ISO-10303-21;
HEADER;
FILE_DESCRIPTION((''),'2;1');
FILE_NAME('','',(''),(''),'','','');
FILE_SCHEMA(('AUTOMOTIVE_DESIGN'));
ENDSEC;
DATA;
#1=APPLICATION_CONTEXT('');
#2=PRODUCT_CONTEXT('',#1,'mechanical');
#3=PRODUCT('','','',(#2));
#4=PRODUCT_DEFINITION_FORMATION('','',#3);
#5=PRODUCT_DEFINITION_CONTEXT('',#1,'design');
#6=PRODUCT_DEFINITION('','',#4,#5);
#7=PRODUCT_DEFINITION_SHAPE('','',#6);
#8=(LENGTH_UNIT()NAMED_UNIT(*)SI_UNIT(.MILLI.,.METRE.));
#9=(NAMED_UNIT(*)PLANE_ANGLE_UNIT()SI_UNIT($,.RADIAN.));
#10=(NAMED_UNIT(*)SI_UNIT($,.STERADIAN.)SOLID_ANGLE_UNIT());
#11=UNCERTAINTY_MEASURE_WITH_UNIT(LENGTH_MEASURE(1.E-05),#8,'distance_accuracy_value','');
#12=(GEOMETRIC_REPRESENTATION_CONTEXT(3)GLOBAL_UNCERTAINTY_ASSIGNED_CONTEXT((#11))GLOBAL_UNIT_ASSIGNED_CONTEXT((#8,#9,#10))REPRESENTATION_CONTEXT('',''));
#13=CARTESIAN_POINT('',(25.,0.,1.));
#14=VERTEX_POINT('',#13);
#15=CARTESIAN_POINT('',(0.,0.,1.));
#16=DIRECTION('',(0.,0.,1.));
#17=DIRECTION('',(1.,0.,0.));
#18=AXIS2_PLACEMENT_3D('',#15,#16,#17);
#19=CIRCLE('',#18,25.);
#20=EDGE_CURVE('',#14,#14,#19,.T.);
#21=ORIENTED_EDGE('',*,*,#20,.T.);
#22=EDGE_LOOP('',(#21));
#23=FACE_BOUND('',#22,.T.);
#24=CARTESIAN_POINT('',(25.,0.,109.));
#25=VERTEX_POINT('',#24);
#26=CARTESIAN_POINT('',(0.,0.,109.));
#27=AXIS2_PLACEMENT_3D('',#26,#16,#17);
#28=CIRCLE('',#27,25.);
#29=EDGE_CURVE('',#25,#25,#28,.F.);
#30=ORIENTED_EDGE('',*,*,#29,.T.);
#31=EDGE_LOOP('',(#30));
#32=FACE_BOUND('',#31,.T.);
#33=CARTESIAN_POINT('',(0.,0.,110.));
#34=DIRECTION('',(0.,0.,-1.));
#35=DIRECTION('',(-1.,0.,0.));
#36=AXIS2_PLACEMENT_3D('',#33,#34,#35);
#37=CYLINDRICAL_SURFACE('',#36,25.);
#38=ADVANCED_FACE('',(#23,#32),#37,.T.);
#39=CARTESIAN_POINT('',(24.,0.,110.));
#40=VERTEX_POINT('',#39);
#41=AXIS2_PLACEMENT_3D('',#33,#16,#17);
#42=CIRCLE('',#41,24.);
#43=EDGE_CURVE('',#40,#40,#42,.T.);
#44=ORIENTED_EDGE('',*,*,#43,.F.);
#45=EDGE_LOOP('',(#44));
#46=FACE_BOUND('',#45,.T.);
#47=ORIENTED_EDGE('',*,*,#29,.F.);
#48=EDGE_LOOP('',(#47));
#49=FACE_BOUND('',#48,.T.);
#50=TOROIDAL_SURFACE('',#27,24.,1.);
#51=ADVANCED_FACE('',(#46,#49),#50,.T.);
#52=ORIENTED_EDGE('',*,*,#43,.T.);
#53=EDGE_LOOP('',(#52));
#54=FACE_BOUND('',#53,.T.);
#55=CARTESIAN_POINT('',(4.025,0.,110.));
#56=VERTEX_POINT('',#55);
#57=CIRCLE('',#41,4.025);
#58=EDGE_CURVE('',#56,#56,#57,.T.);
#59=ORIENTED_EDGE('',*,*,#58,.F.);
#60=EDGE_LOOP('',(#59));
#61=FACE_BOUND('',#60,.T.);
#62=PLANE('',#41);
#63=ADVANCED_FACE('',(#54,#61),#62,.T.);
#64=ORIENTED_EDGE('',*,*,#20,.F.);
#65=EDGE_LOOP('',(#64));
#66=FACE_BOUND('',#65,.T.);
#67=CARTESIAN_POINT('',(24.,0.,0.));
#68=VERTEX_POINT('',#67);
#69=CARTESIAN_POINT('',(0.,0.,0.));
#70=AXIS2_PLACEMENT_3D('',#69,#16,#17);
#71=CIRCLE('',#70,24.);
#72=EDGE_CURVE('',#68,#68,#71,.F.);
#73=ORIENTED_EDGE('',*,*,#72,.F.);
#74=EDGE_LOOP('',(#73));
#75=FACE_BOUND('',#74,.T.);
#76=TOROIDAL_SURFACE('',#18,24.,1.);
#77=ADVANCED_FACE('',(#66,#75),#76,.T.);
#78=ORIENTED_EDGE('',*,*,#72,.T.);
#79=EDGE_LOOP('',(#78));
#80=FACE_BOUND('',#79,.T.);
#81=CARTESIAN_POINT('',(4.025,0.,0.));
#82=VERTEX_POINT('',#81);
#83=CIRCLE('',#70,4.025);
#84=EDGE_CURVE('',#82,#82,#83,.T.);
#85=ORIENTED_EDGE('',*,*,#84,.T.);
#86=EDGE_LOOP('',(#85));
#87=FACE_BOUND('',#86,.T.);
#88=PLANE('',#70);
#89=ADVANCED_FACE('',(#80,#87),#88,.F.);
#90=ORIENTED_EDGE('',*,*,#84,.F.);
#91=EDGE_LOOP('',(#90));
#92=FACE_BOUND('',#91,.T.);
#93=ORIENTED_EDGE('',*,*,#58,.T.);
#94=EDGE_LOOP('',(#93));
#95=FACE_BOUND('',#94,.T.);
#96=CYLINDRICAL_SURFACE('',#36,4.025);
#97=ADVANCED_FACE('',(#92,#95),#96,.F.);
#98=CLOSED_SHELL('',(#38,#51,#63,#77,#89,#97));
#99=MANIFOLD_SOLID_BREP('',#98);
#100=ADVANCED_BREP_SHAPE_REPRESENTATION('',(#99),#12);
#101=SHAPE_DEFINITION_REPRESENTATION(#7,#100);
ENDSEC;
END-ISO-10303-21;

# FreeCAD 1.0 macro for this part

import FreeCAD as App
import Part
import Sketcher
Q = App.Units.Quantity


def edges_at(feature, points):
    """Names of the edges that pass closest to the given points."""
    edges = feature.Shape.Edges
    near = lambda p: min(range(len(edges)), key=lambda i: edges[i].distToShape(Part.Vertex(*p))[0])
    return sorted({f"Edge{near(p) + 1}" for p in points})

doc = App.newDocument("Part")
body = doc.addObject("PartDesign::Body", "Body")

# Sketch on XY plane
sketch1 = body.newObject("Sketcher::SketchObject", "Sketch")
sketch1.AttachmentSupport = (doc.getObject("XY_Plane"), [""])
sketch1.MapMode = "FlatFace"
sketch1.addGeometry([
    Part.Circle(App.Vector(0, 0, 0), App.Vector(0, 0, 1), 25),
    Part.Circle(App.Vector(0, 0, 0), App.Vector(0, 0, 1), 4),
], False)
sketch1.addConstraint([
    Sketcher.Constraint("Coincident", 0, 3, -1, 1),
    Sketcher.Constraint("Coincident", 1, 3, -1, 1),
    Sketcher.Constraint("Diameter", 0, Q("50 mm")),
    Sketcher.Constraint("Diameter", 1, Q("8.05 mm")),
])
pad1 = body.newObject("PartDesign::Pad", "Pad")
pad1.Profile = sketch1
pad1.Length = 110
doc.recompute()

fillet = body.newObject("PartDesign::Fillet", "Fillet")
fillet.Base = (pad1, edges_at(pad1, [(-25, 0, 0), (-25, 0, 110)]))
fillet.Radius = 1

doc.recompute()
